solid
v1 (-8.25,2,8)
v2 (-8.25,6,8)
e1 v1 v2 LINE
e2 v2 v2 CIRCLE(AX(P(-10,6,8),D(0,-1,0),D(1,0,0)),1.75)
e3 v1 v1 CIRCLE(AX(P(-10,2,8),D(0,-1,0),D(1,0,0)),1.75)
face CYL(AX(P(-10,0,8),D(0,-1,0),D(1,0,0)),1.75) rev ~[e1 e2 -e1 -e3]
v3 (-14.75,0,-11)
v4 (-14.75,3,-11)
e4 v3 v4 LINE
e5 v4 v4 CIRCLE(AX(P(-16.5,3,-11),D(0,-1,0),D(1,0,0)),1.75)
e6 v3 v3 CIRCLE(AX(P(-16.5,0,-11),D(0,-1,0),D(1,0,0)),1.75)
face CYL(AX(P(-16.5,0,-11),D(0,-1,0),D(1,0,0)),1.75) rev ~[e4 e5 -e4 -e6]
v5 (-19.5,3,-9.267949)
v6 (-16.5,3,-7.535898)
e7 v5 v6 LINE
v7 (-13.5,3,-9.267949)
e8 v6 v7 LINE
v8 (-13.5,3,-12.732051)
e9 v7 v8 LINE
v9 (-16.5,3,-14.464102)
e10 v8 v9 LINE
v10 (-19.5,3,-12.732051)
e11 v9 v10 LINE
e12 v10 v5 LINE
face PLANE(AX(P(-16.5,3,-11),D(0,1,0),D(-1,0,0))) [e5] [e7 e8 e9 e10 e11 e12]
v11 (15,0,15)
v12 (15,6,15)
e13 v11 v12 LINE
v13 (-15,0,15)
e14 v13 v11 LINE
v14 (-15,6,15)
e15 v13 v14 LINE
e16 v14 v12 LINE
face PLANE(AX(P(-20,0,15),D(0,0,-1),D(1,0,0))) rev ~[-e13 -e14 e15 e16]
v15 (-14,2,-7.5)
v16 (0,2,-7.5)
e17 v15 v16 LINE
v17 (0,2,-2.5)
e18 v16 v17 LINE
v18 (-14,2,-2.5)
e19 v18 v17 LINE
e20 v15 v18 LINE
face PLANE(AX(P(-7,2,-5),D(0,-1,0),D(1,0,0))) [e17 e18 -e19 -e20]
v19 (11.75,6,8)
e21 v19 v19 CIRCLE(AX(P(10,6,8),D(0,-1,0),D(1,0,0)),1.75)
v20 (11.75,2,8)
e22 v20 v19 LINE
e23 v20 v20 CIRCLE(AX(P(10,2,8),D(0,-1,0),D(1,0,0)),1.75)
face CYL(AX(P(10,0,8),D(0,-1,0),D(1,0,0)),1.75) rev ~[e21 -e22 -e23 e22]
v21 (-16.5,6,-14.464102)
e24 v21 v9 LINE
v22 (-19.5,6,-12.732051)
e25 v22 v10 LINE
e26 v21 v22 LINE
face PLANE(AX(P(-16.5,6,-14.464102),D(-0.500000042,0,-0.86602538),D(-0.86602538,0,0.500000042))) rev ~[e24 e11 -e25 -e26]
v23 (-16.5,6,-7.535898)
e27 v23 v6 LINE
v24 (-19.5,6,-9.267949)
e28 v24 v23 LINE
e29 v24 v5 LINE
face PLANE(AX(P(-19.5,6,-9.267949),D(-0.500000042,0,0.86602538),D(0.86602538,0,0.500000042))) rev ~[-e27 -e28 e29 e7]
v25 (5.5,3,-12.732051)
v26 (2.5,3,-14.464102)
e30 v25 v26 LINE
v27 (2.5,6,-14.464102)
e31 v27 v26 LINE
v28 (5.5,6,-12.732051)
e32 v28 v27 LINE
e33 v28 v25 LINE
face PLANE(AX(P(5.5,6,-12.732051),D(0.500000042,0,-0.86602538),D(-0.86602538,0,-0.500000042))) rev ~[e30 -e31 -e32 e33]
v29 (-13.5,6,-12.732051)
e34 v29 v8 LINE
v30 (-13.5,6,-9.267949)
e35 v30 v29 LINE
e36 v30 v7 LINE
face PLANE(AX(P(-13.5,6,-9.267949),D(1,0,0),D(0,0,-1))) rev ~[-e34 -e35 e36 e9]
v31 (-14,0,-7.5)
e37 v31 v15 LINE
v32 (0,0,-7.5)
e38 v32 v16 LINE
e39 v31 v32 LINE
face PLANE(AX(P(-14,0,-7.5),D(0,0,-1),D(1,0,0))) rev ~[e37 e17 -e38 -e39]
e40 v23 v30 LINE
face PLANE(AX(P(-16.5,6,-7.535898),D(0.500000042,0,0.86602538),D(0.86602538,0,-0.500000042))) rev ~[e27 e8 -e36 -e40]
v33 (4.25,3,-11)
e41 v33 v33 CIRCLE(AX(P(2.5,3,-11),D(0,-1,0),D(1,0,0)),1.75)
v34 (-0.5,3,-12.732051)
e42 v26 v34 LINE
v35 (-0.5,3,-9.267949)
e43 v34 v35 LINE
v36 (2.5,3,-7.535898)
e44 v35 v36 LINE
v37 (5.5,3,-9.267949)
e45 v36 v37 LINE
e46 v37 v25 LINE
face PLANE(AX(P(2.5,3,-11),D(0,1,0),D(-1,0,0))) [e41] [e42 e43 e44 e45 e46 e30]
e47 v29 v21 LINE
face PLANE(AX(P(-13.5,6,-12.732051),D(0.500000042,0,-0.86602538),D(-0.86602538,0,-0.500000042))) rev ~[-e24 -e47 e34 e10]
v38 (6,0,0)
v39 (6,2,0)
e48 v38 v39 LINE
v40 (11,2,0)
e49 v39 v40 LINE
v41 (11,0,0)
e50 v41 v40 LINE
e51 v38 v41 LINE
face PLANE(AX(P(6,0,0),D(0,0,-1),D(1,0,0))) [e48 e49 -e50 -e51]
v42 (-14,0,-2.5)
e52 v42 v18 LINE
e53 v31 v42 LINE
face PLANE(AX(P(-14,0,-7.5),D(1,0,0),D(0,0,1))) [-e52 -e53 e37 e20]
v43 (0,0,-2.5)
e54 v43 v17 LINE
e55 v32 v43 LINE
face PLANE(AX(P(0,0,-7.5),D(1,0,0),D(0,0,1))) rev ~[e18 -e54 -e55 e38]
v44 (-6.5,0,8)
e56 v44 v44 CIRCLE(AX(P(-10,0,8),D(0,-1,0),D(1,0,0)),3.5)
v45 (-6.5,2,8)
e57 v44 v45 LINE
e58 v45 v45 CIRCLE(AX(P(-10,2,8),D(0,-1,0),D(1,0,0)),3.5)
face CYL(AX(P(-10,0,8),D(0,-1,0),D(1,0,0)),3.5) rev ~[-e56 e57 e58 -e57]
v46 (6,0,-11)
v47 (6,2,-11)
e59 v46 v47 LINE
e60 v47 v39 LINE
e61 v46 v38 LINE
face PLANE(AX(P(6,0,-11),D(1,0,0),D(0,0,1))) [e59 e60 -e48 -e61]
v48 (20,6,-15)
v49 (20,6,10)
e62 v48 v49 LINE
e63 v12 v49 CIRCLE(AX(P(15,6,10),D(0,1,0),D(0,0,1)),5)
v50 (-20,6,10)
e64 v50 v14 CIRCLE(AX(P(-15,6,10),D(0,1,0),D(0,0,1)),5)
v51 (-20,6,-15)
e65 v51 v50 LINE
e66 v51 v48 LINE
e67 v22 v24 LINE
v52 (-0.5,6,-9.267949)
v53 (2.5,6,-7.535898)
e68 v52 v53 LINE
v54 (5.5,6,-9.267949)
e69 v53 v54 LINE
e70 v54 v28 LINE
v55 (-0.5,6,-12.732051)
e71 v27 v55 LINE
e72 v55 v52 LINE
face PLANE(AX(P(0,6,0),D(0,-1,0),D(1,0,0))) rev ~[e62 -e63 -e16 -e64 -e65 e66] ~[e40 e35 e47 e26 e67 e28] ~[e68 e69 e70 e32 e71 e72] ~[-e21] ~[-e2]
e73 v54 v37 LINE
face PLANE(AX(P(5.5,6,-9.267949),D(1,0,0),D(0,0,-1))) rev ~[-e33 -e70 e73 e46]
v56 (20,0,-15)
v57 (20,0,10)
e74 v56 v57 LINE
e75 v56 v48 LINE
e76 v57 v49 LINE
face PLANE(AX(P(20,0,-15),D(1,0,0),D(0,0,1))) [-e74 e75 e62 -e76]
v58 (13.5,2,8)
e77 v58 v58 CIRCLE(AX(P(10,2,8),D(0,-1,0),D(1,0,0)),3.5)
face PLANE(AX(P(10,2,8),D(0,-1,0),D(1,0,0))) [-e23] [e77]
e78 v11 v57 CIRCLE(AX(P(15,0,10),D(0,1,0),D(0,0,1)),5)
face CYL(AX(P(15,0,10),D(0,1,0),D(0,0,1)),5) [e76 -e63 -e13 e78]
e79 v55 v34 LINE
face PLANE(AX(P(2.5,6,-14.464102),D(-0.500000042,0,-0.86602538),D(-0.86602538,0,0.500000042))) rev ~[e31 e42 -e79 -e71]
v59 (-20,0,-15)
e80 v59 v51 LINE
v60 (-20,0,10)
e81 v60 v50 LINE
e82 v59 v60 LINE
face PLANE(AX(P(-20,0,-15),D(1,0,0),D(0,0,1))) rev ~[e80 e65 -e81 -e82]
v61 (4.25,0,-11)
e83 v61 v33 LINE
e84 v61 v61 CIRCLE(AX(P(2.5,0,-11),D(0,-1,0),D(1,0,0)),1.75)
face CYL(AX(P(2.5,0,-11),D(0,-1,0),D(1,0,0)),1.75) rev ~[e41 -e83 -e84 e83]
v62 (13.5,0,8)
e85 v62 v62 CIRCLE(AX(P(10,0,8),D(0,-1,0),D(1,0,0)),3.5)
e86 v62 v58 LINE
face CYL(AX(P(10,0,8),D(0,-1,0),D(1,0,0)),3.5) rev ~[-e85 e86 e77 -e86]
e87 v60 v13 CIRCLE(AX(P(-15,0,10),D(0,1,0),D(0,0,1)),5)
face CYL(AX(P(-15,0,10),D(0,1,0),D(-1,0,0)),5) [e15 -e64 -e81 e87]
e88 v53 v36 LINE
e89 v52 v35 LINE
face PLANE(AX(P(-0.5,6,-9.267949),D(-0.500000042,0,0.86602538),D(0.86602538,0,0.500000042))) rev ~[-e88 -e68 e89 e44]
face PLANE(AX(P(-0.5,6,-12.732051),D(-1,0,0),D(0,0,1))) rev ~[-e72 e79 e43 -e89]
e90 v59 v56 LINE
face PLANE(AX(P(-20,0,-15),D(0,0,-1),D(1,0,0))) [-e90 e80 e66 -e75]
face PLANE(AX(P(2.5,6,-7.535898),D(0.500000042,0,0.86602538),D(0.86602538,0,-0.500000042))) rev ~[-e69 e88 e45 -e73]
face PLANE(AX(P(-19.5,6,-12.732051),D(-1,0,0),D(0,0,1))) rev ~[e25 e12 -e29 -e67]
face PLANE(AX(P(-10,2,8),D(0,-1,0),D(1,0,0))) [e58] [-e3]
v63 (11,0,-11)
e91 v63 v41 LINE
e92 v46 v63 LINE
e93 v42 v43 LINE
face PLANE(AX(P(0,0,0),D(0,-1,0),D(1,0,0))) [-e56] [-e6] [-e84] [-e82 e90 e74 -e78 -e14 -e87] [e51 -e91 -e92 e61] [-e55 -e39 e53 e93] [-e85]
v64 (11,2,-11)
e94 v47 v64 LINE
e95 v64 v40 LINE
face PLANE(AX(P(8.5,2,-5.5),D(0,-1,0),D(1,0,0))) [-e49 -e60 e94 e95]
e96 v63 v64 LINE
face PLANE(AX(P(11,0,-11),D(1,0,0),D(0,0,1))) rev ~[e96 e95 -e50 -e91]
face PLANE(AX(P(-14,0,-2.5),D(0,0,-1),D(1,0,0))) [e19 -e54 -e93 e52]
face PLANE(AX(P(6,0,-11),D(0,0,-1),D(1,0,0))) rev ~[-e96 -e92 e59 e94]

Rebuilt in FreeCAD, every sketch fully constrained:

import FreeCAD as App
import Part
import Sketcher
from FreeCAD import Vector
Q = App.Units.Quantity


def edges_at(feature, points):
    """Names of the edges that pass closest to the given points."""
    edges = feature.Shape.Edges
    near = lambda p: min(range(len(edges)), key=lambda i: edges[i].distToShape(Part.Vertex(*p))[0])
    return sorted({f"Edge{near(p) + 1}" for p in points})


def add_polygon(sketch, points):
    """Adds a closed chain of lines whose ends are joined by coincident constraints."""
    first, n = sketch.GeometryCount, len(points)
    for a, b in zip(points, points[1:] + points[:1]):
        sketch.addGeometry(Part.LineSegment(App.Vector(*a, 0), App.Vector(*b, 0)), False)
    for i in range(n):
        sketch.addConstraint(Sketcher.Constraint("Coincident", first + i, 2, first + (i + 1) % n, 1))

doc = App.newDocument("Part")
params = doc.addObject("Spreadsheet::Sheet", "Params")
for row, (alias, value) in enumerate([
    ("sketch1_diameter", "3.5 mm"),
    ("sketch1_width", "40 mm"),
    ("sketch1_height", "30 mm"),
    ("pad1_length", "6 mm"),
    ("sketch2_diameter", "7 mm"),
    ("sketch2_diameter2", "3.5 mm"),
    ("sketch2_width", "5 mm"),
    ("sketch2_width2", "14 mm"),
    ("sketch2_height", "11 mm"),
    ("pocket1_length", "2 mm"),
    ("pocket2_length", "3 mm"),
    ("fillet_radius", "5 mm"),
], start=1):
    params.set(f"A{row}", alias)
    params.set(f"B{row}", "=" + value)
    params.setAlias(f"B{row}", alias)

body = doc.addObject("PartDesign::Body", "Body")

sketch1 = body.newObject("Sketcher::SketchObject", "Sketch")
sketch1.AttachmentSupport = (doc.getObject("XZ_Plane"), [""])
sketch1.MapMode = "FlatFace"
add_polygon(sketch1, [(-20, 15), (-20, -15), (20, -15), (20, 15)])
sketch1.addGeometry(Part.Circle(Vector(-16.5, -11, 0), Vector(0, 0, 1), 1.75), False)
sketch1.addGeometry(Part.Circle(Vector(2.5, -11, 0), Vector(0, 0, 1), 1.75), False)
sketch1.addGeometry(Part.Circle(Vector(-10, 8, 0), Vector(0, 0, 1), 1.75), False)
sketch1.addGeometry(Part.Circle(Vector(10, 8, 0), Vector(0, 0, 1), 1.75), False)
sketch1.addConstraint(Sketcher.Constraint("Vertical", 0))
sketch1.addConstraint(Sketcher.Constraint("Horizontal", 1))
sketch1.addConstraint(Sketcher.Constraint("Vertical", 2))
sketch1.addConstraint(Sketcher.Constraint("Horizontal", 3))
sketch1.addConstraint(Sketcher.Constraint("Equal", 4, 5))
sketch1.addConstraint(Sketcher.Constraint("Equal", 5, 6))
sketch1.addConstraint(Sketcher.Constraint("Equal", 6, 7))
sketch1.addConstraint(Sketcher.Constraint("Symmetric", 0, 2, 2, 2, -1, 1))
sketch1.addConstraint(Sketcher.Constraint("Symmetric", 6, 3, 7, 3, -2))
sketch1.addConstraint(Sketcher.Constraint("Horizontal", 4, 3, 5, 3))
sketch1.addConstraint(Sketcher.Constraint("Diameter", 4, Q("3.5 mm")))
sketch1.addConstraint(Sketcher.Constraint("DistanceX", 1, 1, 1, 2, Q("40 mm")))
sketch1.addConstraint(Sketcher.Constraint("DistanceY", 0, 2, 0, 1, Q("30 mm")))
sketch1.addConstraint(Sketcher.Constraint("DistanceY", 4, 3, -1, 1, Q("11 mm")))
sketch1.addConstraint(Sketcher.Constraint("DistanceX", 6, 3, -1, 1, Q("10 mm")))
sketch1.addConstraint(Sketcher.Constraint("DistanceY", -1, 1, 6, 3, Q("8 mm")))
sketch1.addConstraint(Sketcher.Constraint("DistanceX", 4, 3, 5, 3, Q("19 mm")))
sketch1.addConstraint(Sketcher.Constraint("DistanceX", 4, 3, -1, 1, Q("16.5 mm")))
sketch1.setExpression("Constraints[14]", "Params.sketch1_diameter")
sketch1.setExpression("Constraints[15]", "Params.sketch1_width")
sketch1.setExpression("Constraints[16]", "Params.sketch1_height")
pad1 = body.newObject("PartDesign::Pad", "Pad")
pad1.Profile = sketch1
pad1.setExpression("Length", "Params.pad1_length")
pad1.Reversed = True

sketch2 = body.newObject("Sketcher::SketchObject", "Sketch001")
sketch2.AttachmentSupport = (doc.getObject("XZ_Plane"), [""])
sketch2.MapMode = "FlatFace"
add_polygon(sketch2, [(6, 0), (6, -11), (11, -11), (11, 0)])
add_polygon(sketch2, [(-14, -2.5), (-14, -7.5), (0, -7.5), (0, -2.5)])
sketch2.addGeometry(Part.Circle(Vector(-10, 8, 0), Vector(0, 0, 1), 3.5), False)
sketch2.addGeometry(Part.Circle(Vector(-10, 8, 0), Vector(0, 0, 1), 1.75), False)
sketch2.addGeometry(Part.Circle(Vector(10, 8, 0), Vector(0, 0, 1), 3.5), False)
sketch2.addGeometry(Part.Circle(Vector(10, 8, 0), Vector(0, 0, 1), 1.75), False)
sketch2.addConstraint(Sketcher.Constraint("Vertical", 0))
sketch2.addConstraint(Sketcher.Constraint("Horizontal", 1))
sketch2.addConstraint(Sketcher.Constraint("Vertical", 2))
sketch2.addConstraint(Sketcher.Constraint("Horizontal", 3))
sketch2.addConstraint(Sketcher.Constraint("Vertical", 4))
sketch2.addConstraint(Sketcher.Constraint("Horizontal", 5))
sketch2.addConstraint(Sketcher.Constraint("Vertical", 6))
sketch2.addConstraint(Sketcher.Constraint("Horizontal", 7))
sketch2.addConstraint(Sketcher.Constraint("Coincident", 9, 3, 8, 3))
sketch2.addConstraint(Sketcher.Constraint("Coincident", 11, 3, 10, 3))
sketch2.addConstraint(Sketcher.Constraint("Equal", 8, 10))
sketch2.addConstraint(Sketcher.Constraint("Equal", 9, 11))
sketch2.addConstraint(Sketcher.Constraint("Symmetric", 8, 3, 10, 3, -2))
sketch2.addConstraint(Sketcher.Constraint("PointOnObject", 2, 2, -1))
sketch2.addConstraint(Sketcher.Constraint("PointOnObject", 5, 2, -2))
sketch2.addConstraint(Sketcher.Constraint("Equal", 3, 4))
sketch2.addConstraint(Sketcher.Constraint("Diameter", 8, Q("7 mm")))
sketch2.addConstraint(Sketcher.Constraint("Diameter", 9, Q("3.5 mm")))
sketch2.addConstraint(Sketcher.Constraint("DistanceX", 1, 1, 1, 2, Q("5 mm")))
sketch2.addConstraint(Sketcher.Constraint("DistanceX", 5, 1, 5, 2, Q("14 mm")))
sketch2.addConstraint(Sketcher.Constraint("DistanceY", 0, 2, 0, 1, Q("11 mm")))
sketch2.addConstraint(Sketcher.Constraint("DistanceX", 8, 3, -1, 1, Q("10 mm")))
sketch2.addConstraint(Sketcher.Constraint("DistanceY", -1, 1, 8, 3, Q("8 mm")))
sketch2.addConstraint(Sketcher.Constraint("DistanceX", -1, 1, 0, 2, Q("6 mm")))
sketch2.addConstraint(Sketcher.Constraint("DistanceY", 4, 2, -1, 1, Q("7.5 mm")))
sketch2.setExpression("Constraints[24]", "Params.sketch2_diameter")
sketch2.setExpression("Constraints[25]", "Params.sketch2_diameter2")
sketch2.setExpression("Constraints[26]", "Params.sketch2_width")
sketch2.setExpression("Constraints[27]", "Params.sketch2_width2")
sketch2.setExpression("Constraints[28]", "Params.sketch2_height")
pocket1 = body.newObject("PartDesign::Pocket", "Pocket")
pocket1.Profile = sketch2
pocket1.setExpression("Length", "Params.pocket1_length")

sketch3 = body.newObject("Sketcher::SketchObject", "Sketch002")
sketch3.AttachmentSupport = (doc.getObject("XZ_Plane"), [""])
sketch3.MapMode = "FlatFace"
sketch3.AttachmentOffset = App.Placement(Vector(0, 0, -6), App.Rotation())
add_polygon(sketch3, [(2.5, -7.535898), (5.5, -9.267949), (5.5, -12.732051), (2.5, -14.464102), (-0.5, -12.732051), (-0.5, -9.267949)])
add_polygon(sketch3, [(-13.5, -9.267949), (-13.5, -12.732051), (-16.5, -14.464102), (-19.5, -12.732051), (-19.5, -9.267949), (-16.5, -7.535898)])
sketch3.addConstraint(Sketcher.Constraint("Vertical", 1))
sketch3.addConstraint(Sketcher.Constraint("Vertical", 4))
sketch3.addConstraint(Sketcher.Constraint("Vertical", 6))
sketch3.addConstraint(Sketcher.Constraint("Vertical", 9))
sketch3.addConstraint(Sketcher.Constraint("Parallel", 0, 3))
sketch3.addConstraint(Sketcher.Constraint("Parallel", 2, 5))
sketch3.addConstraint(Sketcher.Constraint("Parallel", 5, 7))
sketch3.addConstraint(Sketcher.Constraint("Parallel", 3, 8))
sketch3.addConstraint(Sketcher.Constraint("Parallel", 7, 10))
sketch3.addConstraint(Sketcher.Constraint("Parallel", 8, 11))
sketch3.addConstraint(Sketcher.Constraint("Horizontal", 1, 2, 3, 2))
sketch3.addConstraint(Sketcher.Constraint("Horizontal", 0, 2, 4, 2))
sketch3.addConstraint(Sketcher.Constraint("Horizontal", 3, 2, 6, 2))
sketch3.addConstraint(Sketcher.Constraint("Horizontal", 2, 2, 7, 2))
sketch3.addConstraint(Sketcher.Constraint("Horizontal", 6, 2, 8, 2))
sketch3.addConstraint(Sketcher.Constraint("Horizontal", 4, 2, 9, 2))
sketch3.addConstraint(Sketcher.Constraint("Horizontal", 5, 2, 10, 2))
sketch3.addConstraint(Sketcher.Constraint("Vertical", 2, 2, 5, 2))
sketch3.addConstraint(Sketcher.Constraint("Angle", 0, Q("-30.000003 deg")))
sketch3.addConstraint(Sketcher.Constraint("DistanceX", 2, 2, 1, 2, Q("3 mm")))
sketch3.addConstraint(Sketcher.Constraint("DistanceX", 6, 2, 3, 2, Q("13 mm")))
sketch3.addConstraint(Sketcher.Constraint("DistanceX", -1, 1, 0, 2, Q("5.5 mm")))
sketch3.addConstraint(Sketcher.Constraint("DistanceY", 5, 2, -1, 1, Q("7.535898 mm")))
sketch3.addConstraint(Sketcher.Constraint("DistanceY", 1, 2, 1, 1, Q("3.464102 mm")))
pocket2 = body.newObject("PartDesign::Pocket", "Pocket001")
pocket2.Profile = sketch3
pocket2.setExpression("Length", "Params.pocket2_length")
pocket2.Reversed = True
doc.recompute()

fillet = body.newObject("PartDesign::Fillet", "Fillet")
fillet.Base = (pocket2, edges_at(pocket2, [(20, 3, 15), (-20, 3, 15)]))
fillet.setExpression("Radius", "Params.fillet_radius")

doc.recompute()
